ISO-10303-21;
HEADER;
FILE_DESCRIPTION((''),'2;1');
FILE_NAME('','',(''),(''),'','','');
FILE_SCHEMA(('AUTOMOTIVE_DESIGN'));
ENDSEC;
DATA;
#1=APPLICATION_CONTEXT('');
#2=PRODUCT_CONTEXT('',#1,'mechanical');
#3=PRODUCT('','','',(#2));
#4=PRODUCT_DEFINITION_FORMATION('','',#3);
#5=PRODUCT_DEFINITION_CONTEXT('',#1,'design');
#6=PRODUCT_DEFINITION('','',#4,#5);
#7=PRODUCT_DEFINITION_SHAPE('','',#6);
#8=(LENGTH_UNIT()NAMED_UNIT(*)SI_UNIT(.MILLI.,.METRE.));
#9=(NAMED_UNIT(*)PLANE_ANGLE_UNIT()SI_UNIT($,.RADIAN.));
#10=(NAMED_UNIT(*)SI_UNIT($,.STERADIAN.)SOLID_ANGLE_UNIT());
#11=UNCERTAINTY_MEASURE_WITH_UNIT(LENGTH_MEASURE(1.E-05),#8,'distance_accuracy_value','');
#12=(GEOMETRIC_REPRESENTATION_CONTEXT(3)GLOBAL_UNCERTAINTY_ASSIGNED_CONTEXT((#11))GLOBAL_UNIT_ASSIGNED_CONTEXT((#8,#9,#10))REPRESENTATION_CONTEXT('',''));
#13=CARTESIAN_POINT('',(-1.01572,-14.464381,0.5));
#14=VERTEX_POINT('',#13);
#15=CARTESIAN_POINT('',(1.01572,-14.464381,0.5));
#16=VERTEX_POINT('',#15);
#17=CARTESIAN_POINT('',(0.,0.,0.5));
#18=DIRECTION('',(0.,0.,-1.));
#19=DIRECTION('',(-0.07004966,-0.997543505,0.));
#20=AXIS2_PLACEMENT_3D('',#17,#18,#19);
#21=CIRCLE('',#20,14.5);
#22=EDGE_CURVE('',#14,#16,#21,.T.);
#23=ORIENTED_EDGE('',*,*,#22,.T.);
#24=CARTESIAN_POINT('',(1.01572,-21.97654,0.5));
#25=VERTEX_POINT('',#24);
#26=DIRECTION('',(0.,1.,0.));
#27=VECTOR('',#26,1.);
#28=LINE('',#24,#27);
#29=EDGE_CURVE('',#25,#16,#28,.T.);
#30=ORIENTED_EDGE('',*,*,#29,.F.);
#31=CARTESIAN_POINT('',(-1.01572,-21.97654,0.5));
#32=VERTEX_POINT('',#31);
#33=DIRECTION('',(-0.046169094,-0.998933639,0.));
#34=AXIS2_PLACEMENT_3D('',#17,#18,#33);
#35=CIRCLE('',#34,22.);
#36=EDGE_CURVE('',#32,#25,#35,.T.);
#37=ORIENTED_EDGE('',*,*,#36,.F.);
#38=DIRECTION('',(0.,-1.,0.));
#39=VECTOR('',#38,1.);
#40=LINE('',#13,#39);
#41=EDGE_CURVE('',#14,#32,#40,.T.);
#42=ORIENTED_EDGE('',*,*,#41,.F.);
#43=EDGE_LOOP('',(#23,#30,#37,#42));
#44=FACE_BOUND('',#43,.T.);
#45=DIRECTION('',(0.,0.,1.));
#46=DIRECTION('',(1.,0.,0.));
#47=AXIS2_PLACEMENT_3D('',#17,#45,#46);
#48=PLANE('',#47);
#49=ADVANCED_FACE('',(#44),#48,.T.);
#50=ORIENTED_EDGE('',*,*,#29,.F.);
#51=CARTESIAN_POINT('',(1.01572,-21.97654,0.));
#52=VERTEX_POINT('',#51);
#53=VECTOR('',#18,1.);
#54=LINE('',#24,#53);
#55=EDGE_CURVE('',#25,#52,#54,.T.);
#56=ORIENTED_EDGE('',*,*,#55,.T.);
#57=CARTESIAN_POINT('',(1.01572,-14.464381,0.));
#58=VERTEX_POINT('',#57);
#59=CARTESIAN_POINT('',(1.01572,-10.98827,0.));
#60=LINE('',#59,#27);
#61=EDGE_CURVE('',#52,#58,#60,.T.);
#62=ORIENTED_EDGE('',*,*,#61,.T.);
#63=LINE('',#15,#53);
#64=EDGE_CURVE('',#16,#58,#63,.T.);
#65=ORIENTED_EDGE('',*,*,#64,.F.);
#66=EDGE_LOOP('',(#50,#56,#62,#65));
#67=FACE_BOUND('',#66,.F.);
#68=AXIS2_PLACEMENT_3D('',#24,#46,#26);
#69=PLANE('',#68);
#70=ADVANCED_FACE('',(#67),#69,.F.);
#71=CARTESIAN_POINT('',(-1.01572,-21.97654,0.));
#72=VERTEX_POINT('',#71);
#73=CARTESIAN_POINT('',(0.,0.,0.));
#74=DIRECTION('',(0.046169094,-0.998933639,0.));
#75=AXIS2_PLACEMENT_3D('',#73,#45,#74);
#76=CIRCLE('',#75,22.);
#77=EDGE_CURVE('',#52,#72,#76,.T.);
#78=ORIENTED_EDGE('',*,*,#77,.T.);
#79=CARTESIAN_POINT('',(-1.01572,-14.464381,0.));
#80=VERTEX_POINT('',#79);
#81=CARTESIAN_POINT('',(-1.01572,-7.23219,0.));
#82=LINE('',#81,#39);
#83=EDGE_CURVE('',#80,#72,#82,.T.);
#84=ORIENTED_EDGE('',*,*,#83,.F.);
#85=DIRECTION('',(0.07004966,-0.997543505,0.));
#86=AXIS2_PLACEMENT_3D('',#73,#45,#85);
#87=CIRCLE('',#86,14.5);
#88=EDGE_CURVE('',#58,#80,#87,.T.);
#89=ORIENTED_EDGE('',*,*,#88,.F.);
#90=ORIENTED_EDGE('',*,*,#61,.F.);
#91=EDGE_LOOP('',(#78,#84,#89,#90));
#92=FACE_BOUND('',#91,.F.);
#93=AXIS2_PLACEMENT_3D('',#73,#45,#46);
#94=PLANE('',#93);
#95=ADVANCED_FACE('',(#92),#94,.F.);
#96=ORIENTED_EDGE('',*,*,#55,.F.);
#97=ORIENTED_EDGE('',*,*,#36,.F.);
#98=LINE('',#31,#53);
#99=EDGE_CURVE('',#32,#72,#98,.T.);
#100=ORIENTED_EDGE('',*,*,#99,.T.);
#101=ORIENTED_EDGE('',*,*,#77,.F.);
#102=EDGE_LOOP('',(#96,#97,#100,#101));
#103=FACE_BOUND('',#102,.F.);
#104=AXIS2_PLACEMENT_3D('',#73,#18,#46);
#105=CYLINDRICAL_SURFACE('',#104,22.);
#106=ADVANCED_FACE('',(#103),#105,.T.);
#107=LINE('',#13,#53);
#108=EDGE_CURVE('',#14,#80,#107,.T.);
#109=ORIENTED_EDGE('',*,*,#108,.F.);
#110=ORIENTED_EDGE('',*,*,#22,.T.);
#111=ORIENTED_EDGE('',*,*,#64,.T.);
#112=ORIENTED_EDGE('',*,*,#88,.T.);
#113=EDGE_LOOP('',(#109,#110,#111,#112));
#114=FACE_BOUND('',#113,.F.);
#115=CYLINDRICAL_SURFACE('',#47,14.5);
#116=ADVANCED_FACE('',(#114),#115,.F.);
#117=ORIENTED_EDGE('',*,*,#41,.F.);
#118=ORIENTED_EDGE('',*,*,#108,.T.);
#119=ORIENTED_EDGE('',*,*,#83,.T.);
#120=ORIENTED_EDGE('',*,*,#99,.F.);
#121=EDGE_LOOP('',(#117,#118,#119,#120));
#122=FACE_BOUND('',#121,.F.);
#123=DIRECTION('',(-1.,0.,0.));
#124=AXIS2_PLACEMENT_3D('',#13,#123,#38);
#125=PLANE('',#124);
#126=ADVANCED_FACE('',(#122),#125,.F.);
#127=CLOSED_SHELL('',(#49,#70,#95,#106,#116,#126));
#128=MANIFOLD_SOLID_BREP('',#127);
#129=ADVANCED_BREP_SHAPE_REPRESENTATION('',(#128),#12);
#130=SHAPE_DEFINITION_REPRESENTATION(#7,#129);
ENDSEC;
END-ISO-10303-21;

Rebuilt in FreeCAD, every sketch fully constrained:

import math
import FreeCAD as App
import Part
import Sketcher
from FreeCAD import Vector

doc = App.newDocument("Part")
body = doc.addObject("PartDesign::Body", "Body")

sketch1 = body.newObject("Sketcher::SketchObject", "Sketch")
sketch1.AttachmentSupport = (doc.getObject("XY_Plane"), [""])
sketch1.MapMode = "FlatFace"
sketch1.addGeometry(Part.Circle(Vector(0, 0, 0), Vector(0, 0, 1), 22), False)
sketch1.addConstraint(Sketcher.Constraint("Coincident", 0, 3, -1, 1))
sketch1.addConstraint(Sketcher.Constraint("Diameter", 0, 44.0))
pad1 = body.newObject("PartDesign::Pad", "Pad")
pad1.Profile = sketch1
pad1.Length = 0.5

sketch2 = body.newObject("Sketcher::SketchObject", "Sketch001")
sketch2.AttachmentSupport = (doc.getObject("XY_Plane"), [""])
sketch2.MapMode = "FlatFace"
sketch2.AttachmentOffset = App.Placement(Vector(0, 0, 0.5), App.Rotation())
sketch2.addGeometry(Part.Circle(Vector(0, 0, 0), Vector(0, 0, 1), 14), False)
sketch2.addConstraint(Sketcher.Constraint("Coincident", 0, 3, -1, 1))
sketch2.addConstraint(Sketcher.Constraint("Diameter", 0, 29.0))
pocket1 = body.newObject("PartDesign::Pocket", "Pocket")
pocket1.Profile = sketch2
pocket1.Length = 25

sketch3 = body.newObject("Sketcher::SketchObject", "Sketch002")
sketch3.AttachmentSupport = (doc.getObject("XY_Plane"), [""])
sketch3.MapMode = "FlatFace"
sketch3.AttachmentOffset = App.Placement(Vector(0, 0, 0.5), App.Rotation())
sketch3.addGeometry(Part.ArcOfCircle(Part.Circle(Vector(0, 0, 0), Vector(0, 0, 1), 22), math.radians(-92.65), math.radians(-87.35)), False)
sketch3.addGeometry(Part.LineSegment(Vector(1, -22, 0), Vector(1, -14.5, 0)), False)
sketch3.addGeometry(Part.ArcOfCircle(Part.Circle(Vector(0, 0, 0), Vector(0, 0, 1), 14.5), math.radians(-94.02), math.radians(-85.98)), False)
sketch3.addGeometry(Part.LineSegment(Vector(-1, -14.5, 0), Vector(-1, -22, 0)), False)
sketch3.addConstraint(Sketcher.Constraint("Coincident", 0, 2, 1, 1))
sketch3.addConstraint(Sketcher.Constraint("Coincident", 1, 2, 2, 2))
sketch3.addConstraint(Sketcher.Constraint("Coincident", 2, 1, 3, 1))
sketch3.addConstraint(Sketcher.Constraint("Coincident", 3, 2, 0, 1))
sketch3.addConstraint(Sketcher.Constraint("Vertical", 1))
sketch3.addConstraint(Sketcher.Constraint("Vertical", 3))
sketch3.addConstraint(Sketcher.Constraint("Coincident", 0, 3, -1, 1))
sketch3.addConstraint(Sketcher.Constraint("Coincident", 2, 3, -1, 1))
sketch3.addConstraint(Sketcher.Constraint("Horizontal", 1, 2, 2, 1))
sketch3.addConstraint(Sketcher.Constraint("Radius", 0, 22.0))
sketch3.addConstraint(Sketcher.Constraint("Radius", 2, 14.5))
sketch3.addConstraint(Sketcher.Constraint("DistanceY", 1, 1, 1, 2, 7.512159))
pocket2 = body.newObject("PartDesign::Pocket", "Pocket001")
pocket2.Profile = sketch3
pocket2.Length = 25

doc.recompute()
